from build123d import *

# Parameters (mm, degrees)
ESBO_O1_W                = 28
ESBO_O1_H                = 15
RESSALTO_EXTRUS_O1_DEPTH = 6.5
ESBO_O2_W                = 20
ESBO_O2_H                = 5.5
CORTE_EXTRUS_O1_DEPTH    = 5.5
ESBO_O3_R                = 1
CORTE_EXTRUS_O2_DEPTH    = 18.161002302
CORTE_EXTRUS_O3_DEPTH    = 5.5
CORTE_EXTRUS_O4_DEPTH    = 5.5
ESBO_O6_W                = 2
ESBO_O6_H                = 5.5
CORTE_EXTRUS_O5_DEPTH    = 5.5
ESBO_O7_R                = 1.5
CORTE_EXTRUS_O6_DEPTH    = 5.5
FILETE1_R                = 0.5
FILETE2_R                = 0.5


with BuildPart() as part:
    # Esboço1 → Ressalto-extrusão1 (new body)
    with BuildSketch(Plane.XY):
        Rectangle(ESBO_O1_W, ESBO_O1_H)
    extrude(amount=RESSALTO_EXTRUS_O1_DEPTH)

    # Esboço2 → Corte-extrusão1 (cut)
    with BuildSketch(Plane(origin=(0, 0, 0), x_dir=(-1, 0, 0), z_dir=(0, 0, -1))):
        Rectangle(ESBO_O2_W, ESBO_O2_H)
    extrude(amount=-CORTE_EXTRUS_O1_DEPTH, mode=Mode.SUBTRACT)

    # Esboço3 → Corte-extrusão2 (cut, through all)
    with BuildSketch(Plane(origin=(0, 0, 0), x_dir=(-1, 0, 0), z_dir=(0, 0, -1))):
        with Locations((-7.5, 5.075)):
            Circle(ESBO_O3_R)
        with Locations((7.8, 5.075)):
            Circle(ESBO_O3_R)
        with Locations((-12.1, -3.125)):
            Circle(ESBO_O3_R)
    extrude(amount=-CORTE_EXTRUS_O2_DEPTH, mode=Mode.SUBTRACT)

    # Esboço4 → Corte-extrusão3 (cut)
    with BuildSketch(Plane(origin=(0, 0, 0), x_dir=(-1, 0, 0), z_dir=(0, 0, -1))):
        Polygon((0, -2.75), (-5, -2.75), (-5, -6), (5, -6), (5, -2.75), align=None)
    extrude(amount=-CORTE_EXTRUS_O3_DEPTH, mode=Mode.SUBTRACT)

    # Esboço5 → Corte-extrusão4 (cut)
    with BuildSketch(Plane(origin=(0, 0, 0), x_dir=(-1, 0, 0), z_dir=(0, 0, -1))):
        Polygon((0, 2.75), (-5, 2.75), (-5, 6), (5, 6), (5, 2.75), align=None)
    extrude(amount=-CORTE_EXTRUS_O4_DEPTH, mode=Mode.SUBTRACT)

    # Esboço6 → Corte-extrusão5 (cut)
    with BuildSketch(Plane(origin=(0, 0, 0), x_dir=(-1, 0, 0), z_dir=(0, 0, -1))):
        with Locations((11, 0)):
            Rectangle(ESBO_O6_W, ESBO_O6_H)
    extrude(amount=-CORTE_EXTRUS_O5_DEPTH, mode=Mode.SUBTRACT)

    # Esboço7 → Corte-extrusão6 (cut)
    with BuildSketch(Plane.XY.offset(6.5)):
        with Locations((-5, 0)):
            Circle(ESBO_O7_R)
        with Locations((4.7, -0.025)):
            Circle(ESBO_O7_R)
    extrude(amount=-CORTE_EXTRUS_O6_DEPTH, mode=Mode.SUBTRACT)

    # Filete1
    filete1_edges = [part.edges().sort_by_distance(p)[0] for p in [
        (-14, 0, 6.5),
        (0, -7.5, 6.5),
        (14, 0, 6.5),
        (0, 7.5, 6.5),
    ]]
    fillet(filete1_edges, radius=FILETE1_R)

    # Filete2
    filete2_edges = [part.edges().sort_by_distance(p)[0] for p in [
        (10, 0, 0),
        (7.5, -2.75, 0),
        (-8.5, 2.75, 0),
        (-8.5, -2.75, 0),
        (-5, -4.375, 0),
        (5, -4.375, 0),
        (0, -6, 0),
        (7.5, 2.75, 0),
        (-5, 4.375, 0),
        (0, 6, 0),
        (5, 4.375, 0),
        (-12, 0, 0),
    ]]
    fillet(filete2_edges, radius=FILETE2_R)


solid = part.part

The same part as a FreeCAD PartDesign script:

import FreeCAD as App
import Part
import Sketcher
from FreeCAD import Vector
Q = App.Units.Quantity


def edges_at(feature, points):
    """Names of the edges that pass closest to the given points."""
    edges = feature.Shape.Edges
    near = lambda p: min(range(len(edges)), key=lambda i: edges[i].distToShape(Part.Vertex(*p))[0])
    return sorted({f"Edge{near(p) + 1}" for p in points})


def add_polygon(sketch, points):
    """Adds a closed chain of lines whose ends are joined by coincident constraints."""
    first, n = sketch.GeometryCount, len(points)
    for a, b in zip(points, points[1:] + points[:1]):
        sketch.addGeometry(Part.LineSegment(App.Vector(*a, 0), App.Vector(*b, 0)), False)
    for i in range(n):
        sketch.addConstraint(Sketcher.Constraint("Coincident", first + i, 2, first + (i + 1) % n, 1))

doc = App.newDocument("Part")
body = doc.addObject("PartDesign::Body", "Body")

# Sketch on XY plane
sketch1 = doc.addObject("Sketcher::SketchObject", "Sketch")
body.addObject(sketch1)
sketch1.AttachmentSupport = (doc.XY_Plane, [""])
sketch1.MapMode = "FlatFace"
add_polygon(sketch1, [(-14, 8), (-14, -8), (14, -8), (14, 8)])  # lines 0-3
sketch1.addConstraint(Sketcher.Constraint("Vertical", 0))
sketch1.addConstraint(Sketcher.Constraint("Horizontal", 1))
sketch1.addConstraint(Sketcher.Constraint("Vertical", 2))
sketch1.addConstraint(Sketcher.Constraint("Horizontal", 3))
sketch1.addConstraint(Sketcher.Constraint("Symmetric", 0, 2, 2, 2, -1, 1))
sketch1.addConstraint(Sketcher.Constraint("DistanceX", 1, 1, 1, 2, Q("28 mm")))
sketch1.addConstraint(Sketcher.Constraint("DistanceY", 0, 2, 0, 1, Q("15 mm")))
pad1 = doc.addObject("PartDesign::Pad", "Pad")
body.addObject(pad1)
pad1.Profile = sketch1
pad1.Length = 6.5

# Sketch on XY plane
sketch2 = doc.addObject("Sketcher::SketchObject", "Sketch001")
body.addObject(sketch2)
sketch2.AttachmentSupport = (doc.XY_Plane, [""])
sketch2.MapMode = "FlatFace"
add_polygon(sketch2, [(10, 3), (10, -3), (-10, -3), (-10, 3)])  # lines 0-3
sketch2.addConstraint(Sketcher.Constraint("Vertical", 0))
sketch2.addConstraint(Sketcher.Constraint("Horizontal", 1))
sketch2.addConstraint(Sketcher.Constraint("Vertical", 2))
sketch2.addConstraint(Sketcher.Constraint("Horizontal", 3))
sketch2.addConstraint(Sketcher.Constraint("Symmetric", 0, 2, 2, 2, -1, 1))
sketch2.addConstraint(Sketcher.Constraint("DistanceX", 1, 2, 1, 1, Q("20 mm")))
sketch2.addConstraint(Sketcher.Constraint("DistanceY", 0, 2, 0, 1, Q("5.5 mm")))
pocket1 = doc.addObject("PartDesign::Pocket", "Pocket")
body.addObject(pocket1)
pocket1.Profile = sketch2
pocket1.Length = 5.5
pocket1.Reversed = True

# Sketch on XY plane
sketch3 = doc.addObject("Sketcher::SketchObject", "Sketch002")
body.addObject(sketch3)
sketch3.AttachmentSupport = (doc.XY_Plane, [""])
sketch3.MapMode = "FlatFace"
sketch3.addGeometry(Part.Circle(Vector(7.5, 5.1, 0), Vector(0, 0, 1), 1), False)
sketch3.addGeometry(Part.Circle(Vector(-7.8, 5.1, 0), Vector(0, 0, 1), 1), False)
sketch3.addGeometry(Part.Circle(Vector(12.1, -3.1, 0), Vector(0, 0, 1), 1), False)
sketch3.addConstraint(Sketcher.Constraint("Equal", 0, 1))
sketch3.addConstraint(Sketcher.Constraint("Equal", 1, 2))
sketch3.addConstraint(Sketcher.Constraint("Horizontal", 0, 3, 1, 3))
sketch3.addConstraint(Sketcher.Constraint("Diameter", 0, Q("2 mm")))
sketch3.addConstraint(Sketcher.Constraint("DistanceX", -1, 1, 0, 3, Q("7.5 mm")))
sketch3.addConstraint(Sketcher.Constraint("DistanceX", 1, 3, -1, 1, Q("7.8 mm")))
sketch3.addConstraint(Sketcher.Constraint("DistanceX", -1, 1, 2, 3, Q("12.1 mm")))
sketch3.addConstraint(Sketcher.Constraint("DistanceY", 2, 3, 0, 3, Q("8.2 mm")))
sketch3.addConstraint(Sketcher.Constraint("DistanceY", -1, 1, 0, 3, Q("5.075 mm")))
pocket2 = doc.addObject("PartDesign::Pocket", "Pocket001")
body.addObject(pocket2)
pocket2.Profile = sketch3
pocket2.Type = "ThroughAll"
pocket2.Reversed = True

# Sketch on XY plane
sketch4 = doc.addObject("Sketcher::SketchObject", "Sketch003")
body.addObject(sketch4)
sketch4.AttachmentSupport = (doc.XY_Plane, [""])
sketch4.MapMode = "FlatFace"
add_polygon(sketch4, [(5, -2.8), (5, -6), (-5, -6), (-5, -2.8)])  # lines 0-3
sketch4.addConstraint(Sketcher.Constraint("Vertical", 0))
sketch4.addConstraint(Sketcher.Constraint("Horizontal", 1))
sketch4.addConstraint(Sketcher.Constraint("Vertical", 2))
sketch4.addConstraint(Sketcher.Constraint("Horizontal", 3))
sketch4.addConstraint(Sketcher.Constraint("DistanceX", 1, 2, 1, 1, Q("10 mm")))
sketch4.addConstraint(Sketcher.Constraint("DistanceX", -1, 1, 0, 2, Q("5 mm")))
sketch4.addConstraint(Sketcher.Constraint("DistanceY", 0, 2, -1, 1, Q("6 mm")))
sketch4.addConstraint(Sketcher.Constraint("DistanceY", 0, 2, 0, 1, Q("3.25 mm")))
pocket3 = doc.addObject("PartDesign::Pocket", "Pocket002")
body.addObject(pocket3)
pocket3.Profile = sketch4
pocket3.Length = 5.5
pocket3.Reversed = True

# Sketch on XY plane
sketch5 = doc.addObject("Sketcher::SketchObject", "Sketch004")
body.addObject(sketch5)
sketch5.AttachmentSupport = (doc.XY_Plane, [""])
sketch5.MapMode = "FlatFace"
add_polygon(sketch5, [(5, 2.8), (-5, 2.8), (-5, 6), (5, 6)])  # lines 0-3
sketch5.addConstraint(Sketcher.Constraint("Horizontal", 0))
sketch5.addConstraint(Sketcher.Constraint("Vertical", 1))
sketch5.addConstraint(Sketcher.Constraint("Horizontal", 2))
sketch5.addConstraint(Sketcher.Constraint("Vertical", 3))
sketch5.addConstraint(Sketcher.Constraint("DistanceX", 0, 2, 0, 1, Q("10 mm")))
sketch5.addConstraint(Sketcher.Constraint("DistanceX", 0, 2, -1, 1, Q("5 mm")))
sketch5.addConstraint(Sketcher.Constraint("DistanceY", -1, 1, 1, 2, Q("6 mm")))
sketch5.addConstraint(Sketcher.Constraint("DistanceY", 1, 1, 1, 2, Q("3.25 mm")))
pocket4 = doc.addObject("PartDesign::Pocket", "Pocket003")
body.addObject(pocket4)
pocket4.Profile = sketch5
pocket4.Length = 5.5
pocket4.Reversed = True

# Sketch on XY plane
sketch6 = doc.addObject("Sketcher::SketchObject", "Sketch005")
body.addObject(sketch6)
sketch6.AttachmentSupport = (doc.XY_Plane, [""])
sketch6.MapMode = "FlatFace"
add_polygon(sketch6, [(-10, 2.8), (-10, -2.8), (-12, -2.8), (-12, 2.8)])  # lines 0-3
sketch6.addConstraint(Sketcher.Constraint("Vertical", 0))
sketch6.addConstraint(Sketcher.Constraint("Horizontal", 1))
sketch6.addConstraint(Sketcher.Constraint("Vertical", 2))
sketch6.addConstraint(Sketcher.Constraint("Horizontal", 3))
sketch6.addConstraint(Sketcher.Constraint("DistanceX", 1, 2, 1, 1, Q("2 mm")))
sketch6.addConstraint(Sketcher.Constraint("DistanceY", 0, 2, 0, 1, Q("5.5 mm")))
sketch6.addConstraint(Sketcher.Constraint("DistanceX", 0, 2, -1, 1, Q("10 mm")))
sketch6.addConstraint(Sketcher.Constraint("DistanceY", 0, 2, -1, 1, Q("2.75 mm")))
pocket5 = doc.addObject("PartDesign::Pocket", "Pocket004")
body.addObject(pocket5)
pocket5.Profile = sketch6
pocket5.Length = 5.5
pocket5.Reversed = True

# Sketch on XY plane
sketch7 = doc.addObject("Sketcher::SketchObject", "Sketch006")
body.addObject(sketch7)
sketch7.AttachmentSupport = (doc.XY_Plane, [""])
sketch7.MapMode = "FlatFace"
sketch7.AttachmentOffset = App.Placement(Vector(0, 0, 6.5), App.Rotation())
sketch7.addGeometry(Part.Circle(Vector(-5, 0, 0), Vector(0, 0, 1), 1.5), False)
sketch7.addGeometry(Part.Circle(Vector(4.7, 0, 0), Vector(0, 0, 1), 1.5), False)
sketch7.addConstraint(Sketcher.Constraint("Equal", 0, 1))
sketch7.addConstraint(Sketcher.Constraint("PointOnObject", 0, 3, -1))
sketch7.addConstraint(Sketcher.Constraint("Diameter", 0, Q("3 mm")))
sketch7.addConstraint(Sketcher.Constraint("DistanceX", 0, 3, -1, 1, Q("5 mm")))
sketch7.addConstraint(Sketcher.Constraint("DistanceX", -1, 1, 1, 3, Q("4.7 mm")))
sketch7.addConstraint(Sketcher.Constraint("DistanceY", 1, 3, -1, 1, Q("0.025 mm")))
pocket6 = doc.addObject("PartDesign::Pocket", "Pocket005")
body.addObject(pocket6)
pocket6.Profile = sketch7
pocket6.Length = 5.5
doc.recompute()

fillet = doc.addObject("PartDesign::Fillet", "Fillet")
body.addObject(fillet)
fillet.Base = (pocket6, edges_at(pocket6, [
    (-14, 0, 6.5),
    (0, -7.5, 6.5),
    (14, 0, 6.5),
    (0, 7.5, 6.5),
]))
fillet.Radius = 0.5
doc.recompute()

fillet2 = doc.addObject("PartDesign::Fillet", "Fillet001")
body.addObject(fillet2)
fillet2.Base = (fillet, edges_at(fillet, [
    (10, 0, 0),
    (7.5, -2.75, 0),
    (-8.5, 2.75, 0),
    (-8.5, -2.75, 0),
    (-5, -4.375, 0),
    (5, -4.375, 0),
    (0, -6, 0),
    (7.5, 2.75, 0),
    (-5, 4.375, 0),
    (0, 6, 0),
    (5, 4.375, 0),
    (-12, 0, 0),
]))
fillet2.Radius = 0.5

doc.recompute()
